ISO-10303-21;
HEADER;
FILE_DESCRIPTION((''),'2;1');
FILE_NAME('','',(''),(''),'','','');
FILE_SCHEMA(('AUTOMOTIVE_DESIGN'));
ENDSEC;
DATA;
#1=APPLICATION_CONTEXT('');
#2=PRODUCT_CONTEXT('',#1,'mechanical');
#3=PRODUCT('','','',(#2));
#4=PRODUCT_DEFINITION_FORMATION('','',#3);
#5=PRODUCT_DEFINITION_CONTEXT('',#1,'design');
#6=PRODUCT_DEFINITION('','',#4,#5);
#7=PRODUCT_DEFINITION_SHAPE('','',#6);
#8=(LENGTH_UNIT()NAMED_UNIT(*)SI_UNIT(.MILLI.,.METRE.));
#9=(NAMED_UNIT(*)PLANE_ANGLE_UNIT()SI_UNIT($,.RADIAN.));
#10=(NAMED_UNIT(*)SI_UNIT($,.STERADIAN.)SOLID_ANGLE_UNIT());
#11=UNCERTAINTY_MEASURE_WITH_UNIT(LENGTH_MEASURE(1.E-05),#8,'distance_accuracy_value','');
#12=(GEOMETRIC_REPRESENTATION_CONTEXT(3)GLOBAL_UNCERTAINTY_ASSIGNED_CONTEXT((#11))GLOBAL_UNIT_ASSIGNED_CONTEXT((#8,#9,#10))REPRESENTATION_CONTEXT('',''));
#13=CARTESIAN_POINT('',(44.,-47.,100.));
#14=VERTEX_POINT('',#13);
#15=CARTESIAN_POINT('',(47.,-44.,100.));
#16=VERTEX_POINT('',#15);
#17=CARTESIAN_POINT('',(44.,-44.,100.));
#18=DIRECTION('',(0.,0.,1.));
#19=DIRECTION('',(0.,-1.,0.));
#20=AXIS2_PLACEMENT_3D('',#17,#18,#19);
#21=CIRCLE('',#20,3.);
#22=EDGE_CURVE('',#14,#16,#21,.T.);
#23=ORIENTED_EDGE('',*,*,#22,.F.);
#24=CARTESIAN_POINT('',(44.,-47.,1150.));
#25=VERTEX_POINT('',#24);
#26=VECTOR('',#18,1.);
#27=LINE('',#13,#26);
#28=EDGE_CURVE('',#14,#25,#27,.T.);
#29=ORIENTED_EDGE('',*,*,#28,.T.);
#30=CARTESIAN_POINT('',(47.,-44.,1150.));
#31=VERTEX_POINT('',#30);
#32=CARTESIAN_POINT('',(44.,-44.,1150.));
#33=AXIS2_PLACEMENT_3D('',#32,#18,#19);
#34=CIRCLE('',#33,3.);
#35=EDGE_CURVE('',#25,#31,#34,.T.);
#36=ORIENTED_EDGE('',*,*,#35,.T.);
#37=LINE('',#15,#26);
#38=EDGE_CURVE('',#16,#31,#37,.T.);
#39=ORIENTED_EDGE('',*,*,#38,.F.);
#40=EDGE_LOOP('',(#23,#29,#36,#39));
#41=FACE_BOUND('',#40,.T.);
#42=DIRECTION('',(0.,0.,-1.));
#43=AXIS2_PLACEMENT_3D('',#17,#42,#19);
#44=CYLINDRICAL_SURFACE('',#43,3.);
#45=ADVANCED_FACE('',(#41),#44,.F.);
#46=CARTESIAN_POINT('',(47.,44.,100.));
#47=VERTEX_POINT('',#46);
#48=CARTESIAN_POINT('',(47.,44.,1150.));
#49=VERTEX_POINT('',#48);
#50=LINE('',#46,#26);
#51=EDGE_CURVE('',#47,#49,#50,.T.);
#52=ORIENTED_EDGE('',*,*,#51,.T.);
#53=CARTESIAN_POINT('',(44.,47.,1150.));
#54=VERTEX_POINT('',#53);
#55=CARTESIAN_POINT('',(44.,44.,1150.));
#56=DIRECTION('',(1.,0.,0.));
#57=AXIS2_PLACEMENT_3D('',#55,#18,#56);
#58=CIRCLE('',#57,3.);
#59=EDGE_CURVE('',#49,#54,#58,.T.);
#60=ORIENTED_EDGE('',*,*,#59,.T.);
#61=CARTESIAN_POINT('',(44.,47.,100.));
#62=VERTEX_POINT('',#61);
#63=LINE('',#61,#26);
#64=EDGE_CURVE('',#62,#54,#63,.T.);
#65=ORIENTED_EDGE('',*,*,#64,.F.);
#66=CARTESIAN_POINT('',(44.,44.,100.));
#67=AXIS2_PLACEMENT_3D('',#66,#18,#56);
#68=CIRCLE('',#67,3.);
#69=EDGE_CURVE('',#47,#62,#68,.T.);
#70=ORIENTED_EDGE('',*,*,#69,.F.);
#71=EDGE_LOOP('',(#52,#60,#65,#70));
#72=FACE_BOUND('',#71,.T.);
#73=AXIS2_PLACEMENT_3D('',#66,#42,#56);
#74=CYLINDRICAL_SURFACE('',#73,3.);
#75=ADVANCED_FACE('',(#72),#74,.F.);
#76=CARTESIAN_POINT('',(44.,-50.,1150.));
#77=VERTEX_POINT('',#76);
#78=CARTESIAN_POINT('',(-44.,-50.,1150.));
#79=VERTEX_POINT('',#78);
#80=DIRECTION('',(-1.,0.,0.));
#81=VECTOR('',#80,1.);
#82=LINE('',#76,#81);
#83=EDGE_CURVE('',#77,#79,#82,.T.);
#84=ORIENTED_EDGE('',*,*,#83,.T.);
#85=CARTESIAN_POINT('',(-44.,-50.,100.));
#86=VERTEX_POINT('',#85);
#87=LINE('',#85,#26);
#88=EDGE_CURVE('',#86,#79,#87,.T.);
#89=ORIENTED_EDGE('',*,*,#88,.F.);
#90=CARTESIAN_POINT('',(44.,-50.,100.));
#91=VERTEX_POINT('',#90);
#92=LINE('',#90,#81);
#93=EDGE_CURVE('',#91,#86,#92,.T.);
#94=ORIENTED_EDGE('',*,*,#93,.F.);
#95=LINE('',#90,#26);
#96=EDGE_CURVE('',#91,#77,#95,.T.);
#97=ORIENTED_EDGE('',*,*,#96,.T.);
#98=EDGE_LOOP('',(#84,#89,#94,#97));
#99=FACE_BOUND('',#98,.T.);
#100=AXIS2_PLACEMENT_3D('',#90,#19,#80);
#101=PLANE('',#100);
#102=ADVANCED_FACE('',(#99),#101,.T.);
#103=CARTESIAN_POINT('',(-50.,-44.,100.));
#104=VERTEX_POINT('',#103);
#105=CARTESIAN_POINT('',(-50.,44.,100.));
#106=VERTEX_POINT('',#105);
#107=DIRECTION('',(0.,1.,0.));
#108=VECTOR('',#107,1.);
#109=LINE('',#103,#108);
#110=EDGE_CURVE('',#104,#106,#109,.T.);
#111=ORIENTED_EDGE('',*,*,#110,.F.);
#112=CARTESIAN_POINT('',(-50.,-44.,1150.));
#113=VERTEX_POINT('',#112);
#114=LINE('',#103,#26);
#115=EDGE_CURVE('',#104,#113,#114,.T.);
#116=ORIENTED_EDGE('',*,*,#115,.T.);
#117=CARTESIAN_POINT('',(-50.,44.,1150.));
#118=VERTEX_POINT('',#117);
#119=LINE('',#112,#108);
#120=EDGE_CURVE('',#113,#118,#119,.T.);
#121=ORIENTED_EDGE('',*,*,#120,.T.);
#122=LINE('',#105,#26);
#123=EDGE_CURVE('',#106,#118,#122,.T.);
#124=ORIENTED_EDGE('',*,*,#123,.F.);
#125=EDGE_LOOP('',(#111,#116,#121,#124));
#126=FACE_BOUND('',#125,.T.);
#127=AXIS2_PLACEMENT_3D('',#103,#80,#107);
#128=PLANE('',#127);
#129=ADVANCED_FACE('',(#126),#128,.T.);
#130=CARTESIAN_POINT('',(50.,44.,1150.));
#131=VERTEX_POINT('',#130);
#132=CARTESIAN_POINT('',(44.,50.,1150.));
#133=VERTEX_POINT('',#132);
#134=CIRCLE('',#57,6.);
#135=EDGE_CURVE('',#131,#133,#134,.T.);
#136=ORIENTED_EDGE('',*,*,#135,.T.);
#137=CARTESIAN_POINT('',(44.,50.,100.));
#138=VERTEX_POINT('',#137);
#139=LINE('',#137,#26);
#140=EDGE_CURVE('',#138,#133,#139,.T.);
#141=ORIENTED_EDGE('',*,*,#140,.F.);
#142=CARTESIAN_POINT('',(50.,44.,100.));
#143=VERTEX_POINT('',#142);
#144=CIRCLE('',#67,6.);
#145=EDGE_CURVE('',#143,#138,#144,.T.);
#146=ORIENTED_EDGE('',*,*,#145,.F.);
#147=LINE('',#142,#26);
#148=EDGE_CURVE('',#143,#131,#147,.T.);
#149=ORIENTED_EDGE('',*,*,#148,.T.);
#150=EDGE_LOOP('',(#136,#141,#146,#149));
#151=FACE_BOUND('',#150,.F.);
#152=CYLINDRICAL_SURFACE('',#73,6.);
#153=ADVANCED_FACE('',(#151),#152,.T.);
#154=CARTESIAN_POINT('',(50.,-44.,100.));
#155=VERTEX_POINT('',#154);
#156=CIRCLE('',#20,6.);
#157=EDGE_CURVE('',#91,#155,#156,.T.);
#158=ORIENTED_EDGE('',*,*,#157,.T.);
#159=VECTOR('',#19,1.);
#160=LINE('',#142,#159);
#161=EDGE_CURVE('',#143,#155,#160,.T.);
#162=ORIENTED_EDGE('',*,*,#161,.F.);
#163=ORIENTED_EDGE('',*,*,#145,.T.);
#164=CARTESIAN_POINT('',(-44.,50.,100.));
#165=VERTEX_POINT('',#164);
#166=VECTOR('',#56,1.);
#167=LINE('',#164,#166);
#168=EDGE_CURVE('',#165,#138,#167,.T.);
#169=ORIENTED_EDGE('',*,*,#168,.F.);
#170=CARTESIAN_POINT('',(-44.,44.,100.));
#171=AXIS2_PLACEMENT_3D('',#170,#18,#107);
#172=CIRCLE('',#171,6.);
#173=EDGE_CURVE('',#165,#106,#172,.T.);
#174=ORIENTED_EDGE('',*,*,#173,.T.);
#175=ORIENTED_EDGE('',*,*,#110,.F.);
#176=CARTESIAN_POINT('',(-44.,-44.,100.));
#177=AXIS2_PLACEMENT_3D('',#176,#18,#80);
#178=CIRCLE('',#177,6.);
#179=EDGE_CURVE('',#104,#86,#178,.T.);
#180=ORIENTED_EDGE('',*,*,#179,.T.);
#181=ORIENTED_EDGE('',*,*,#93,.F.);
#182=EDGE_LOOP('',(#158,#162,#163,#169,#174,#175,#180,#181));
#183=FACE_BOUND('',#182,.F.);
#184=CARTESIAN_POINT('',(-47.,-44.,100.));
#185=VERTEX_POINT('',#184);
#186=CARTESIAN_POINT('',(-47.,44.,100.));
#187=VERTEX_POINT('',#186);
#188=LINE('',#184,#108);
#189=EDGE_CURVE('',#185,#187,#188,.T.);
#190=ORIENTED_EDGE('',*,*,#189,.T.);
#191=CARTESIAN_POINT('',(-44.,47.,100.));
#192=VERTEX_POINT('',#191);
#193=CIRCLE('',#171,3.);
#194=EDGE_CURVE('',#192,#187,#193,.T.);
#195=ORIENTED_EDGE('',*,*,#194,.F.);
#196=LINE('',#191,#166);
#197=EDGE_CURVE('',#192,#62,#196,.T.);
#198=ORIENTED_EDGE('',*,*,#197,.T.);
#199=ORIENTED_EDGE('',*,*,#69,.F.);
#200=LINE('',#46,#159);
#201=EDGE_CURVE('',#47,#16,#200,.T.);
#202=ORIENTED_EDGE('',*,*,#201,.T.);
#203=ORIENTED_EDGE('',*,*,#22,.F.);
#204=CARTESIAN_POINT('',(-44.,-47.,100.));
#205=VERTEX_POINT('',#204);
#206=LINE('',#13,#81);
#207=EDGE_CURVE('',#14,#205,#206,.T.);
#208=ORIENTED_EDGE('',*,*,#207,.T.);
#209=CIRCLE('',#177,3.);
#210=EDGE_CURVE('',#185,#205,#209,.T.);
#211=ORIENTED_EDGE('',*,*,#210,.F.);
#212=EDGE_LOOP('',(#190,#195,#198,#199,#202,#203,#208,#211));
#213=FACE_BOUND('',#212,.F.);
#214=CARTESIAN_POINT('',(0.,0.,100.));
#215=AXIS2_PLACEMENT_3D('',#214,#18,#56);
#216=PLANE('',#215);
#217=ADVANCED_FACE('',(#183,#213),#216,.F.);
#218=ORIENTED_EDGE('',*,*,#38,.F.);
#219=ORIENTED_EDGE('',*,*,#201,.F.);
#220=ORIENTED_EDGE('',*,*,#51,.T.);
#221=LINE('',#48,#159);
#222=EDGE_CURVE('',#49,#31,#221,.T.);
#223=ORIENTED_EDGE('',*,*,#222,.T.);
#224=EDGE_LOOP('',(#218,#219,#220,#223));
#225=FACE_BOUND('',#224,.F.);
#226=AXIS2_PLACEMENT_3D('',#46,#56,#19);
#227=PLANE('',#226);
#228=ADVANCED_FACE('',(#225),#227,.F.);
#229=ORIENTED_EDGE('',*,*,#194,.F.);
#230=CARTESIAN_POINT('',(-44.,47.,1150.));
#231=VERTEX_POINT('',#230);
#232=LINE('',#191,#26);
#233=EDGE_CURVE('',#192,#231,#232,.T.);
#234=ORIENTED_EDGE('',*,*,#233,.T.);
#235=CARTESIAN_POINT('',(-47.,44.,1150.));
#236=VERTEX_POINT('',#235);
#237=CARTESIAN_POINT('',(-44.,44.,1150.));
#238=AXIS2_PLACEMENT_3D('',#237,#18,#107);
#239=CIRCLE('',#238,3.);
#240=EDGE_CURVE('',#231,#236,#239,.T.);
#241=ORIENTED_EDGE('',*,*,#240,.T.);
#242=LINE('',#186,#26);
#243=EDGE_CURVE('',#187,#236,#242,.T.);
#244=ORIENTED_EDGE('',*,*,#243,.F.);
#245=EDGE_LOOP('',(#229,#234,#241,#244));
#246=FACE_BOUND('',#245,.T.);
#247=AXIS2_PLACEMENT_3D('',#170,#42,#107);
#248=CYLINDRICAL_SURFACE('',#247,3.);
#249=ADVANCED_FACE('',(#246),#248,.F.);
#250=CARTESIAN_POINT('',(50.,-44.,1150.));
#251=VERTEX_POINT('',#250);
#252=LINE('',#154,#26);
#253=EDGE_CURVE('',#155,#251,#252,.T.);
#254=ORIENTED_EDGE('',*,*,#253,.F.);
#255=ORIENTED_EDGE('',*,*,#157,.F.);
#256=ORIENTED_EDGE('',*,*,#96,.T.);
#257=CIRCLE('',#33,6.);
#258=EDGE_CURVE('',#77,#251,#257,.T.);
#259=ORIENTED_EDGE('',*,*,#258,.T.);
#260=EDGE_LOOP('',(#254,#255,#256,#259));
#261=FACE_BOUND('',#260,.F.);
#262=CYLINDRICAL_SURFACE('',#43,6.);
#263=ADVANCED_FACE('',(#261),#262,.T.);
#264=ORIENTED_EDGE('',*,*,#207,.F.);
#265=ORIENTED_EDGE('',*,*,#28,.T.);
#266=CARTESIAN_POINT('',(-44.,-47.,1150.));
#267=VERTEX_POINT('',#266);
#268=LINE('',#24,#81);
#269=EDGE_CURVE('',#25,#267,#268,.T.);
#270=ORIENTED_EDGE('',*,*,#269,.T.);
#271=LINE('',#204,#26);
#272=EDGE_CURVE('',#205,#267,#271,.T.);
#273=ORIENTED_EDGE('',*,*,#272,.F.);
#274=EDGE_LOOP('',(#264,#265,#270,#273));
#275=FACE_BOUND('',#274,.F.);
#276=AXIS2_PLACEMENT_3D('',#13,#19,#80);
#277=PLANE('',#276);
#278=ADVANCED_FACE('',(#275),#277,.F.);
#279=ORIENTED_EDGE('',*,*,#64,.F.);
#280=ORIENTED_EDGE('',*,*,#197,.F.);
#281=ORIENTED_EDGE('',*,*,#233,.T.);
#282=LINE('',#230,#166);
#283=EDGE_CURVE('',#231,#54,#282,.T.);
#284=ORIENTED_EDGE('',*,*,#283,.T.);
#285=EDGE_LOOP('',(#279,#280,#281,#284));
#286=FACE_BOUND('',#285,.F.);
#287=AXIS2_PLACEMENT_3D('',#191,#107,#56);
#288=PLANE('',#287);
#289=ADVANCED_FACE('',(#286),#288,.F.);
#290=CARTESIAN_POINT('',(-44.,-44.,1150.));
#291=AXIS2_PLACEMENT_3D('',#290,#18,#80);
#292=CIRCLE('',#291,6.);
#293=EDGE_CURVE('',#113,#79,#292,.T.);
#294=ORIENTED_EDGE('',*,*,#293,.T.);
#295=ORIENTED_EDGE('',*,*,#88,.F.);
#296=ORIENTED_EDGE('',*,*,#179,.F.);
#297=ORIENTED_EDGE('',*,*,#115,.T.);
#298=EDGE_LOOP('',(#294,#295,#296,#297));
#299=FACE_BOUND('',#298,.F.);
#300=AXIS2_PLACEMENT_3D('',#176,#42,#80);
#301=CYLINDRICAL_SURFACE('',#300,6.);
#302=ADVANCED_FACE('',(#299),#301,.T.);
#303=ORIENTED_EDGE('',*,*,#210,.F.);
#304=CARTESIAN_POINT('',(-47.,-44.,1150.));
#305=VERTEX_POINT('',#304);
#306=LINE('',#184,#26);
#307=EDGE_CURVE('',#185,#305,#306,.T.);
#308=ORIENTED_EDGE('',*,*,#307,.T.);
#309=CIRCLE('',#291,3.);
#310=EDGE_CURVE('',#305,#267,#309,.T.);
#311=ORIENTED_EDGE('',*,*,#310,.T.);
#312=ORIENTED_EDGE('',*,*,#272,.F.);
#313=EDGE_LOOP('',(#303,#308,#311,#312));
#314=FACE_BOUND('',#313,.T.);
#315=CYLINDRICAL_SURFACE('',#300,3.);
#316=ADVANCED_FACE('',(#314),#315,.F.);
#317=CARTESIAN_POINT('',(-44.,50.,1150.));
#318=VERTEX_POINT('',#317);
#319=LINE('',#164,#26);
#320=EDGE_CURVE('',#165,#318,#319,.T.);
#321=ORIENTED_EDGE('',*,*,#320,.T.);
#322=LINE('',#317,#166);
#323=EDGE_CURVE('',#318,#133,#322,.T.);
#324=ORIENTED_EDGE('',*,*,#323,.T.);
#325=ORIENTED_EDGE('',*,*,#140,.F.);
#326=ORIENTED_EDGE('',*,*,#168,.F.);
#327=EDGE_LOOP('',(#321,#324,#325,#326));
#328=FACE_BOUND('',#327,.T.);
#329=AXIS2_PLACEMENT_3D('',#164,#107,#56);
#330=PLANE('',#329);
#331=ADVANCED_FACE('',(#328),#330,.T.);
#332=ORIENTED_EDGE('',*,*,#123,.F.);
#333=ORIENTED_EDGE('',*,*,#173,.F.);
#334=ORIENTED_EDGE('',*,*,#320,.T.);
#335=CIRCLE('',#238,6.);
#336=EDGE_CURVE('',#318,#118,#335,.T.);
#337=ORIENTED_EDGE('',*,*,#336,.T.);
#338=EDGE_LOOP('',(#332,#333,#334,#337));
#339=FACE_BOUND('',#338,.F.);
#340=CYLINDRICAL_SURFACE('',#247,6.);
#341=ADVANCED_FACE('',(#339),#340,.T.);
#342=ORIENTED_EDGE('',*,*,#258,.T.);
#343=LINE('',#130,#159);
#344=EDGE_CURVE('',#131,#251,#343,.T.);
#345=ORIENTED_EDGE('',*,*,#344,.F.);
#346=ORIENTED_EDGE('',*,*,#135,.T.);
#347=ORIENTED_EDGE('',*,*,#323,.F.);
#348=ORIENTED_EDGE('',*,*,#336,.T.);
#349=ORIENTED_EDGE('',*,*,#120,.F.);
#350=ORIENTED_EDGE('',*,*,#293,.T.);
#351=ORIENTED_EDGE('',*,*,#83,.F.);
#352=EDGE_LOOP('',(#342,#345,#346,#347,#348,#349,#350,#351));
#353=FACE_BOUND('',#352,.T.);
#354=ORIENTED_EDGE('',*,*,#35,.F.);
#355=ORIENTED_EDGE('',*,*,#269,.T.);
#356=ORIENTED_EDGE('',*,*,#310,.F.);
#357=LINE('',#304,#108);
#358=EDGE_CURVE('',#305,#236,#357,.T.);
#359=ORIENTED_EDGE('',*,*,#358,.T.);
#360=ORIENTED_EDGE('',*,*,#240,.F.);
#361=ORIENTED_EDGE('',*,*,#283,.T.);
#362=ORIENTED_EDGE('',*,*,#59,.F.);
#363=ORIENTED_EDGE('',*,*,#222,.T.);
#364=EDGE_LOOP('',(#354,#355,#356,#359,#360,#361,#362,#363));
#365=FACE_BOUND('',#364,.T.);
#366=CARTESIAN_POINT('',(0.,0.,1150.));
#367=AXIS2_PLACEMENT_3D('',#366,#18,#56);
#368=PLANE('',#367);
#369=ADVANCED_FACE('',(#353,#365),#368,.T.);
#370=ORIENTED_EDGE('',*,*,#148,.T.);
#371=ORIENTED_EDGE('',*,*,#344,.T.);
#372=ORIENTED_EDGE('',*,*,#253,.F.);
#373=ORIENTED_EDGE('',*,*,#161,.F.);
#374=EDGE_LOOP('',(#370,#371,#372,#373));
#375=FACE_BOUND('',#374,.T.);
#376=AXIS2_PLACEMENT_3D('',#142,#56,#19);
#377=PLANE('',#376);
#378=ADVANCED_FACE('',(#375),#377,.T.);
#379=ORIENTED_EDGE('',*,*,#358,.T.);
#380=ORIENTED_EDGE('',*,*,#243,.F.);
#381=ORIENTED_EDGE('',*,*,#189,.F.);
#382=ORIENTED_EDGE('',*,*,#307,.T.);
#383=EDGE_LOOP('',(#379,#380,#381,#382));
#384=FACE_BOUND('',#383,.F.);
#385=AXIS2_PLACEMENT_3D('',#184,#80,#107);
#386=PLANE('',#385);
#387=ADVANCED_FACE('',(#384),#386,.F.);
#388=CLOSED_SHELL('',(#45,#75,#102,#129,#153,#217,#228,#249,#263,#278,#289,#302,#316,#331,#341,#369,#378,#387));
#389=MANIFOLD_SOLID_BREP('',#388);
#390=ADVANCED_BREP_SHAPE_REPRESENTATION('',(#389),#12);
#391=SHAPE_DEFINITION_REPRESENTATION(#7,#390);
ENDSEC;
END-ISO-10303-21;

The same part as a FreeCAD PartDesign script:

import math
import FreeCAD as App
import Part
import Sketcher

V = App.Vector
Q = App.Units.Quantity

doc = App.newDocument("Part")
body = doc.addObject("PartDesign::Body", "Body")

sketch1 = body.newObject("Sketcher::SketchObject", "Sketch")
sketch1.AttachmentSupport = (doc.getObject("XY_Plane"), [""])
sketch1.MapMode = "FlatFace"
sketch1.AttachmentOffset = App.Placement(V(0, 0, 100), App.Rotation())
sketch1.addGeometry([
    Part.LineSegment(V(-50, 44, 0), V(-50, -44, 0)),
    Part.ArcOfCircle(Part.Circle(V(-44, -44, 0), V(0, 0, 1), 6), math.radians(180), math.radians(270)),
    Part.LineSegment(V(-44, -50, 0), V(44, -50, 0)),
    Part.ArcOfCircle(Part.Circle(V(44, -44, 0), V(0, 0, 1), 6), math.radians(-90), math.radians(0)),
    Part.LineSegment(V(50, -44, 0), V(50, 44, 0)),
    Part.ArcOfCircle(Part.Circle(V(44, 44, 0), V(0, 0, 1), 6), math.radians(0), math.radians(90)),
    Part.LineSegment(V(44, 50, 0), V(-44, 50, 0)),
    Part.ArcOfCircle(Part.Circle(V(-44, 44, 0), V(0, 0, 1), 6), math.radians(90), math.radians(180)),
    Part.ArcOfCircle(Part.Circle(V(-44, 44, 0), V(0, 0, 1), 3), math.radians(90), math.radians(180)),
    Part.LineSegment(V(-44, 47, 0), V(44, 47, 0)),
    Part.ArcOfCircle(Part.Circle(V(44, 44, 0), V(0, 0, 1), 3), math.radians(0), math.radians(90)),
    Part.LineSegment(V(47, 44, 0), V(47, -44, 0)),
    Part.ArcOfCircle(Part.Circle(V(44, -44, 0), V(0, 0, 1), 3), math.radians(-90), math.radians(0)),
    Part.LineSegment(V(44, -47, 0), V(-44, -47, 0)),
    Part.ArcOfCircle(Part.Circle(V(-44, -44, 0), V(0, 0, 1), 3), math.radians(180), math.radians(270)),
    Part.LineSegment(V(-47, -44, 0), V(-47, 44, 0)),
], False)
sketch1.addConstraint([
    Sketcher.Constraint("Tangent", 0, 2, 1, 1),
    Sketcher.Constraint("Tangent", 1, 2, 2, 1),
    Sketcher.Constraint("Tangent", 2, 2, 3, 1),
    Sketcher.Constraint("Tangent", 3, 2, 4, 1),
    Sketcher.Constraint("Tangent", 4, 2, 5, 1),
    Sketcher.Constraint("Tangent", 5, 2, 6, 1),
    Sketcher.Constraint("Tangent", 6, 2, 7, 1),
    Sketcher.Constraint("Tangent", 7, 2, 0, 1),
    Sketcher.Constraint("Tangent", 8, 1, 9, 1),
    Sketcher.Constraint("Tangent", 9, 2, 10, 2),
    Sketcher.Constraint("Tangent", 10, 1, 11, 1),
    Sketcher.Constraint("Tangent", 11, 2, 12, 2),
    Sketcher.Constraint("Tangent", 12, 1, 13, 1),
    Sketcher.Constraint("Tangent", 13, 2, 14, 2),
    Sketcher.Constraint("Tangent", 14, 1, 15, 1),
    Sketcher.Constraint("Tangent", 15, 2, 8, 2),
    Sketcher.Constraint("Vertical", 0),
    Sketcher.Constraint("Horizontal", 2),
    Sketcher.Constraint("Vertical", 4),
    Sketcher.Constraint("Horizontal", 6),
    Sketcher.Constraint("Horizontal", 9),
    Sketcher.Constraint("Vertical", 11),
    Sketcher.Constraint("Horizontal", 13),
    Sketcher.Constraint("Vertical", 15),
    Sketcher.Constraint("Coincident", 8, 3, 7, 3),
    Sketcher.Constraint("Coincident", 10, 3, 5, 3),
    Sketcher.Constraint("Coincident", 12, 3, 3, 3),
    Sketcher.Constraint("Equal", 1, 3),
    Sketcher.Constraint("Equal", 3, 5),
    Sketcher.Constraint("Equal", 5, 7),
    Sketcher.Constraint("Equal", 12, 14),
    Sketcher.Constraint("Symmetric", 1, 3, 5, 3, -1, 1),
    Sketcher.Constraint("Equal", 13, 0),
    Sketcher.Constraint("Radius", 1, Q("6 mm")),
    Sketcher.Constraint("Radius", 8, Q("3 mm")),
    Sketcher.Constraint("DistanceX", 0, 2, -1, 1, Q("50 mm")),
])
pad1 = body.newObject("PartDesign::Pad", "Pad")
pad1.Profile = sketch1
pad1.Length = 1050

doc.recompute()
